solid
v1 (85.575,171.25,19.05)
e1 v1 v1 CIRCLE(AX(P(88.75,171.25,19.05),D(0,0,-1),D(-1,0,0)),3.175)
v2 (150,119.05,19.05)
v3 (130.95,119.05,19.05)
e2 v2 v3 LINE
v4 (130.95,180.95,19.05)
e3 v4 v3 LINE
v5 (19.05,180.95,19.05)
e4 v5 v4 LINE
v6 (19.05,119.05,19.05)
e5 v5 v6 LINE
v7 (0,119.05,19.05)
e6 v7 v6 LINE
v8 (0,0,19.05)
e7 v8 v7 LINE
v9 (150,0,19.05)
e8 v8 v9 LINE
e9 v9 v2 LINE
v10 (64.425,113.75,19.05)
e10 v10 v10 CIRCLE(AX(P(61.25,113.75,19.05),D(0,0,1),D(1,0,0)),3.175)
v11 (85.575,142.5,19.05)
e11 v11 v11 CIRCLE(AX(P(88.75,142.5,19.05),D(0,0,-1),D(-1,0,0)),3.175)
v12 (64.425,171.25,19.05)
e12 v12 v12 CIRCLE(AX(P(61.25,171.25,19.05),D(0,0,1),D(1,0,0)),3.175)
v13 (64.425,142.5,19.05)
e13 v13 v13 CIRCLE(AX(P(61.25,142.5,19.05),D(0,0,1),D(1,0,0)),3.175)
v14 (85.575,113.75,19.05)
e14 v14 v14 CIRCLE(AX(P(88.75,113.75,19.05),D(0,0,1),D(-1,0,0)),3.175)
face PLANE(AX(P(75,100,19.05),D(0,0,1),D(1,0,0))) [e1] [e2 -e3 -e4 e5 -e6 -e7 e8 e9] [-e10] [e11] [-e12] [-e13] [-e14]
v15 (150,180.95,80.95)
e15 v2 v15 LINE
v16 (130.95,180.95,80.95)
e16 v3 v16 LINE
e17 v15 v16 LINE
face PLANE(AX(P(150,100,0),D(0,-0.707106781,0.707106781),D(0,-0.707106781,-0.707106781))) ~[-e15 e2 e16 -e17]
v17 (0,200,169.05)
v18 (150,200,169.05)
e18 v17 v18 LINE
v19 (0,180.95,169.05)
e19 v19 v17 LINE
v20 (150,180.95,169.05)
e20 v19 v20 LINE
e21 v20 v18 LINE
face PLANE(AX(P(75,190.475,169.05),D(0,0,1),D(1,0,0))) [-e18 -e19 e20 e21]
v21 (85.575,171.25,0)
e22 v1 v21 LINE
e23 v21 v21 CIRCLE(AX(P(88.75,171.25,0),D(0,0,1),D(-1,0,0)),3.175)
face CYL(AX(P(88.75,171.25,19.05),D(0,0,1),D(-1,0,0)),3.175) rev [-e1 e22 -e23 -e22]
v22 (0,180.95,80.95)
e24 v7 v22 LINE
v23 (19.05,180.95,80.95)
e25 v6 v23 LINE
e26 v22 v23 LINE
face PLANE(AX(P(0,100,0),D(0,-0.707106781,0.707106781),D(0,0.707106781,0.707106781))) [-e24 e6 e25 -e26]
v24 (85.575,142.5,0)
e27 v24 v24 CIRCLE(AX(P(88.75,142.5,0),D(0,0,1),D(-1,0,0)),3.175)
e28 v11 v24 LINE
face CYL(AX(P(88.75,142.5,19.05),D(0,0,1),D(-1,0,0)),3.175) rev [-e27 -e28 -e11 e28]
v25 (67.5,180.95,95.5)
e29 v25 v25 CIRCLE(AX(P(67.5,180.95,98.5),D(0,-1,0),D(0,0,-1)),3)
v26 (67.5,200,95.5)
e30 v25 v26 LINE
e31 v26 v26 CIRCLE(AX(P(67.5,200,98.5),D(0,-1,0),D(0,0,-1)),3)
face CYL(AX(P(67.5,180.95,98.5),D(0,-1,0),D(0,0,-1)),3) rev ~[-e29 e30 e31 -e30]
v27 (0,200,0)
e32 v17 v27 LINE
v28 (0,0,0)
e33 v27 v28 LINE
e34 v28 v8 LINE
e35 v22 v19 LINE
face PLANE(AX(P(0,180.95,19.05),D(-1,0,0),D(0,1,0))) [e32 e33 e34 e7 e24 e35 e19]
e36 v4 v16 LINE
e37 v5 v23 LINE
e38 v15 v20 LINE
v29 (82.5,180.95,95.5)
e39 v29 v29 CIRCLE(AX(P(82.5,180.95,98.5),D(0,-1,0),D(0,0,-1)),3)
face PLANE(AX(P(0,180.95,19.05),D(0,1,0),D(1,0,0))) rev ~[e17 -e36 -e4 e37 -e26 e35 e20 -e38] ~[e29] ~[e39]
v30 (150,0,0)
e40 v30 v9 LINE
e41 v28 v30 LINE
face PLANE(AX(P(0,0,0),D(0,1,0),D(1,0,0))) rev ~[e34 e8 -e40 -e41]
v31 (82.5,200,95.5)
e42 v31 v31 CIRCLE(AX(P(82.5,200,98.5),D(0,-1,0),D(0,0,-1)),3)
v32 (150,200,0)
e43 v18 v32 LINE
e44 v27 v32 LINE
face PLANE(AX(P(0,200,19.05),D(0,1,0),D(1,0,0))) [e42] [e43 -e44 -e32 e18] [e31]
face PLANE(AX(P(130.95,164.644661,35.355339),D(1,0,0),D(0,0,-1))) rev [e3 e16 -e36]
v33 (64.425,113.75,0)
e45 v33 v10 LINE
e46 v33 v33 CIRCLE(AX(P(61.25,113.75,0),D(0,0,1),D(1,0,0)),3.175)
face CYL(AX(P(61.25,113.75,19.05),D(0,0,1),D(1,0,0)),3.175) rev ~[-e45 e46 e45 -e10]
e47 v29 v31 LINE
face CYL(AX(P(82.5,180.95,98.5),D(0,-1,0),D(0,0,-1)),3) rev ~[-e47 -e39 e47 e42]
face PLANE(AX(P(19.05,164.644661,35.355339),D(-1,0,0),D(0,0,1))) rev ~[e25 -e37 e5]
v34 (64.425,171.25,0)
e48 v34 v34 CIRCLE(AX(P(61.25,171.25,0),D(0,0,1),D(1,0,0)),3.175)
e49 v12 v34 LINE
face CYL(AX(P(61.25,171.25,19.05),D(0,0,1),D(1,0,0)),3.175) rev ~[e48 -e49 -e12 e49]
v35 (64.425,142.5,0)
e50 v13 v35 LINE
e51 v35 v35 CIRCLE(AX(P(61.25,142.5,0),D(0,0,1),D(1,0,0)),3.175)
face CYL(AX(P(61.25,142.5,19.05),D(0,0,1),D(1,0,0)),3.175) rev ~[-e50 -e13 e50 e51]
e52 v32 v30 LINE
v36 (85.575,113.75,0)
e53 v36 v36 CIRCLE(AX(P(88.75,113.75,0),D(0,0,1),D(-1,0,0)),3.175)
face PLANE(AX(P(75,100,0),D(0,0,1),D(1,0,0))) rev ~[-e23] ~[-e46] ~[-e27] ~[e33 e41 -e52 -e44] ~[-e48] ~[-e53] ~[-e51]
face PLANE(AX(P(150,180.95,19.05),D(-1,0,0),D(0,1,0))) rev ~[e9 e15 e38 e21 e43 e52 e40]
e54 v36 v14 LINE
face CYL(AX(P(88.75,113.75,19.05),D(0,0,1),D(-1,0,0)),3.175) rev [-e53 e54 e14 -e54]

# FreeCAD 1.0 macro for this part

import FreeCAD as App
import Part
import Sketcher
from FreeCAD import Vector
Q = App.Units.Quantity


def add_polygon(sketch, points):
    """Adds a closed chain of lines whose ends are joined by coincident constraints."""
    first, n = sketch.GeometryCount, len(points)
    for a, b in zip(points, points[1:] + points[:1]):
        sketch.addGeometry(Part.LineSegment(App.Vector(*a, 0), App.Vector(*b, 0)), False)
    for i in range(n):
        sketch.addConstraint(Sketcher.Constraint("Coincident", first + i, 2, first + (i + 1) % n, 1))

doc = App.newDocument("Part")
body = doc.addObject("PartDesign::Body", "Body")

# Sketch on XY plane
sketch1 = body.newObject("Sketcher::SketchObject", "Sketch")
sketch1.AttachmentSupport = (doc.getObject("XY_Plane"), [""])
sketch1.MapMode = "FlatFace"
add_polygon(sketch1, [(0, 200), (0, 0), (150, 0), (150, 200)])  # lines 0-3
sketch1.addConstraint([
    Sketcher.Constraint("Vertical", 0),
    Sketcher.Constraint("Horizontal", 1),
    Sketcher.Constraint("Vertical", 2),
    Sketcher.Constraint("Horizontal", 3),
    Sketcher.Constraint("Coincident", 0, 2, -1, 1),
    Sketcher.Constraint("DistanceX", 1, 1, 1, 2, Q("150 mm")),
    Sketcher.Constraint("DistanceY", 0, 2, 0, 1, Q("200 mm")),
])
pad1 = body.newObject("PartDesign::Pad", "Pad")
pad1.Profile = sketch1
pad1.Length = 19.05

# Sketch on XY plane
sketch2 = body.newObject("Sketcher::SketchObject", "Sketch001")
sketch2.AttachmentSupport = (doc.getObject("XY_Plane"), [""])
sketch2.MapMode = "FlatFace"
sketch2.AttachmentOffset = App.Placement(Vector(0, 0, 19.05), App.Rotation())
add_polygon(sketch2, [(0, 200), (0, 181), (150, 181), (150, 200)])  # lines 0-3
sketch2.addConstraint([
    Sketcher.Constraint("Vertical", 0),
    Sketcher.Constraint("Horizontal", 1),
    Sketcher.Constraint("Vertical", 2),
    Sketcher.Constraint("Horizontal", 3),
    Sketcher.Constraint("PointOnObject", 0, 2, -2),
    Sketcher.Constraint("DistanceX", 1, 1, 1, 2, Q("150 mm")),
    Sketcher.Constraint("DistanceY", -1, 1, 2, 2, Q("200 mm")),
    Sketcher.Constraint("DistanceY", 0, 2, 0, 1, Q("19.05 mm")),
])
pad2 = body.newObject("PartDesign::Pad", "Pad001")
pad2.Profile = sketch2
pad2.Length = 150

# Sketch on YZ plane
sketch3 = body.newObject("Sketcher::SketchObject", "Sketch002")
sketch3.AttachmentSupport = (doc.getObject("YZ_Plane"), [""])
sketch3.MapMode = "FlatFace"
add_polygon(sketch3, [(200, 0), (100, 0), (200, 100)])  # lines 0-2
sketch3.addConstraint([
    Sketcher.Constraint("Horizontal", 0),
    Sketcher.Constraint("Vertical", 2),
    Sketcher.Constraint("PointOnObject", 0, 2, -1),
    Sketcher.Constraint("Equal", 0, 2),
    Sketcher.Constraint("DistanceX", 0, 2, 0, 1, Q("100 mm")),
    Sketcher.Constraint("DistanceX", -1, 1, 0, 2, Q("100 mm")),
])
pad3 = body.newObject("PartDesign::Pad", "Pad002")
pad3.Profile = sketch3
pad3.Length = 19.05
doc.recompute()

datumplane = body.newObject("PartDesign::Plane", "DatumPlane")
datumplane.AttachmentSupport = (doc.getObject("YZ_Plane"), [""])
datumplane.MapMode = "FlatFace"
datumplane.AttachmentOffset = App.Placement(Vector(0, 0, 75), App.Rotation())
mirrored = body.newObject("PartDesign::Mirrored", "Mirrored")
mirrored.Originals = [pad3]
mirrored.MirrorPlane = (datumplane, [""])
body.Tip = mirrored

# Sketch on XY plane
sketch4 = body.newObject("Sketcher::SketchObject", "Sketch003")
sketch4.AttachmentSupport = (doc.getObject("XY_Plane"), [""])
sketch4.MapMode = "FlatFace"
sketch4.AttachmentOffset = App.Placement(Vector(0, 0, 19.05), App.Rotation())
sketch4.addGeometry([
    Part.Circle(Vector(61.2, 171.2, 0), Vector(0, 0, 1), 3.2),
    Part.Circle(Vector(61.2, 142.5, 0), Vector(0, 0, 1), 3.2),
    Part.Circle(Vector(61.2, 113.8, 0), Vector(0, 0, 1), 3.2),
], False)
sketch4.addConstraint([
    Sketcher.Constraint("Equal", 0, 1),
    Sketcher.Constraint("Equal", 1, 2),
    Sketcher.Constraint("Vertical", 0, 3, 1, 3),
    Sketcher.Constraint("Vertical", 1, 3, 2, 3),
    Sketcher.Constraint("Diameter", 0, Q("6.35 mm")),
    Sketcher.Constraint("DistanceY", -1, 1, 1, 3, Q("142.5 mm")),
    Sketcher.Constraint("DistanceY", 2, 3, 0, 3, Q("57.5 mm")),
    Sketcher.Constraint("DistanceX", -1, 1, 0, 3, Q("61.25 mm")),
    Sketcher.Constraint("DistanceY", -1, 1, 0, 3, Q("171.25 mm")),
])
pocket1 = body.newObject("PartDesign::Pocket", "Pocket")
pocket1.Profile = sketch4
pocket1.Length = 585.095189
pocket1.Midplane = True
doc.recompute()

datumplane2 = body.newObject("PartDesign::Plane", "DatumPlane001")
datumplane2.AttachmentSupport = (doc.getObject("YZ_Plane"), [""])
datumplane2.MapMode = "FlatFace"
datumplane2.AttachmentOffset = App.Placement(Vector(0, 0, 75), App.Rotation())
mirrored2 = body.newObject("PartDesign::Mirrored", "Mirrored001")
mirrored2.Originals = [pocket1]
mirrored2.MirrorPlane = (datumplane2, [""])
body.Tip = mirrored2

# Sketch on XZ plane
sketch5 = body.newObject("Sketcher::SketchObject", "Sketch004")
sketch5.AttachmentSupport = (doc.getObject("XZ_Plane"), [""])
sketch5.MapMode = "FlatFace"
sketch5.AttachmentOffset = App.Placement(Vector(0, 0, -180.95), App.Rotation())
sketch5.addGeometry([
    Part.Circle(Vector(67.5, 98.5, 0), Vector(0, 0, 1), 3),
    Part.Circle(Vector(82.5, 98.5, 0), Vector(0, 0, 1), 3),
], False)
sketch5.addConstraint([
    Sketcher.Constraint("Equal", 0, 1),
    Sketcher.Constraint("Horizontal", 0, 3, 1, 3),
    Sketcher.Constraint("Diameter", 0, Q("6 mm")),
    Sketcher.Constraint("DistanceX", 0, 3, 1, 3, Q("15 mm")),
    Sketcher.Constraint("DistanceX", -1, 1, 0, 3, Q("67.5 mm")),
    Sketcher.Constraint("DistanceY", -1, 1, 0, 3, Q("98.5 mm")),
])
pocket2 = body.newObject("PartDesign::Pocket", "Pocket001")
pocket2.Profile = sketch5
pocket2.Type = "ThroughAll"

doc.recompute()
